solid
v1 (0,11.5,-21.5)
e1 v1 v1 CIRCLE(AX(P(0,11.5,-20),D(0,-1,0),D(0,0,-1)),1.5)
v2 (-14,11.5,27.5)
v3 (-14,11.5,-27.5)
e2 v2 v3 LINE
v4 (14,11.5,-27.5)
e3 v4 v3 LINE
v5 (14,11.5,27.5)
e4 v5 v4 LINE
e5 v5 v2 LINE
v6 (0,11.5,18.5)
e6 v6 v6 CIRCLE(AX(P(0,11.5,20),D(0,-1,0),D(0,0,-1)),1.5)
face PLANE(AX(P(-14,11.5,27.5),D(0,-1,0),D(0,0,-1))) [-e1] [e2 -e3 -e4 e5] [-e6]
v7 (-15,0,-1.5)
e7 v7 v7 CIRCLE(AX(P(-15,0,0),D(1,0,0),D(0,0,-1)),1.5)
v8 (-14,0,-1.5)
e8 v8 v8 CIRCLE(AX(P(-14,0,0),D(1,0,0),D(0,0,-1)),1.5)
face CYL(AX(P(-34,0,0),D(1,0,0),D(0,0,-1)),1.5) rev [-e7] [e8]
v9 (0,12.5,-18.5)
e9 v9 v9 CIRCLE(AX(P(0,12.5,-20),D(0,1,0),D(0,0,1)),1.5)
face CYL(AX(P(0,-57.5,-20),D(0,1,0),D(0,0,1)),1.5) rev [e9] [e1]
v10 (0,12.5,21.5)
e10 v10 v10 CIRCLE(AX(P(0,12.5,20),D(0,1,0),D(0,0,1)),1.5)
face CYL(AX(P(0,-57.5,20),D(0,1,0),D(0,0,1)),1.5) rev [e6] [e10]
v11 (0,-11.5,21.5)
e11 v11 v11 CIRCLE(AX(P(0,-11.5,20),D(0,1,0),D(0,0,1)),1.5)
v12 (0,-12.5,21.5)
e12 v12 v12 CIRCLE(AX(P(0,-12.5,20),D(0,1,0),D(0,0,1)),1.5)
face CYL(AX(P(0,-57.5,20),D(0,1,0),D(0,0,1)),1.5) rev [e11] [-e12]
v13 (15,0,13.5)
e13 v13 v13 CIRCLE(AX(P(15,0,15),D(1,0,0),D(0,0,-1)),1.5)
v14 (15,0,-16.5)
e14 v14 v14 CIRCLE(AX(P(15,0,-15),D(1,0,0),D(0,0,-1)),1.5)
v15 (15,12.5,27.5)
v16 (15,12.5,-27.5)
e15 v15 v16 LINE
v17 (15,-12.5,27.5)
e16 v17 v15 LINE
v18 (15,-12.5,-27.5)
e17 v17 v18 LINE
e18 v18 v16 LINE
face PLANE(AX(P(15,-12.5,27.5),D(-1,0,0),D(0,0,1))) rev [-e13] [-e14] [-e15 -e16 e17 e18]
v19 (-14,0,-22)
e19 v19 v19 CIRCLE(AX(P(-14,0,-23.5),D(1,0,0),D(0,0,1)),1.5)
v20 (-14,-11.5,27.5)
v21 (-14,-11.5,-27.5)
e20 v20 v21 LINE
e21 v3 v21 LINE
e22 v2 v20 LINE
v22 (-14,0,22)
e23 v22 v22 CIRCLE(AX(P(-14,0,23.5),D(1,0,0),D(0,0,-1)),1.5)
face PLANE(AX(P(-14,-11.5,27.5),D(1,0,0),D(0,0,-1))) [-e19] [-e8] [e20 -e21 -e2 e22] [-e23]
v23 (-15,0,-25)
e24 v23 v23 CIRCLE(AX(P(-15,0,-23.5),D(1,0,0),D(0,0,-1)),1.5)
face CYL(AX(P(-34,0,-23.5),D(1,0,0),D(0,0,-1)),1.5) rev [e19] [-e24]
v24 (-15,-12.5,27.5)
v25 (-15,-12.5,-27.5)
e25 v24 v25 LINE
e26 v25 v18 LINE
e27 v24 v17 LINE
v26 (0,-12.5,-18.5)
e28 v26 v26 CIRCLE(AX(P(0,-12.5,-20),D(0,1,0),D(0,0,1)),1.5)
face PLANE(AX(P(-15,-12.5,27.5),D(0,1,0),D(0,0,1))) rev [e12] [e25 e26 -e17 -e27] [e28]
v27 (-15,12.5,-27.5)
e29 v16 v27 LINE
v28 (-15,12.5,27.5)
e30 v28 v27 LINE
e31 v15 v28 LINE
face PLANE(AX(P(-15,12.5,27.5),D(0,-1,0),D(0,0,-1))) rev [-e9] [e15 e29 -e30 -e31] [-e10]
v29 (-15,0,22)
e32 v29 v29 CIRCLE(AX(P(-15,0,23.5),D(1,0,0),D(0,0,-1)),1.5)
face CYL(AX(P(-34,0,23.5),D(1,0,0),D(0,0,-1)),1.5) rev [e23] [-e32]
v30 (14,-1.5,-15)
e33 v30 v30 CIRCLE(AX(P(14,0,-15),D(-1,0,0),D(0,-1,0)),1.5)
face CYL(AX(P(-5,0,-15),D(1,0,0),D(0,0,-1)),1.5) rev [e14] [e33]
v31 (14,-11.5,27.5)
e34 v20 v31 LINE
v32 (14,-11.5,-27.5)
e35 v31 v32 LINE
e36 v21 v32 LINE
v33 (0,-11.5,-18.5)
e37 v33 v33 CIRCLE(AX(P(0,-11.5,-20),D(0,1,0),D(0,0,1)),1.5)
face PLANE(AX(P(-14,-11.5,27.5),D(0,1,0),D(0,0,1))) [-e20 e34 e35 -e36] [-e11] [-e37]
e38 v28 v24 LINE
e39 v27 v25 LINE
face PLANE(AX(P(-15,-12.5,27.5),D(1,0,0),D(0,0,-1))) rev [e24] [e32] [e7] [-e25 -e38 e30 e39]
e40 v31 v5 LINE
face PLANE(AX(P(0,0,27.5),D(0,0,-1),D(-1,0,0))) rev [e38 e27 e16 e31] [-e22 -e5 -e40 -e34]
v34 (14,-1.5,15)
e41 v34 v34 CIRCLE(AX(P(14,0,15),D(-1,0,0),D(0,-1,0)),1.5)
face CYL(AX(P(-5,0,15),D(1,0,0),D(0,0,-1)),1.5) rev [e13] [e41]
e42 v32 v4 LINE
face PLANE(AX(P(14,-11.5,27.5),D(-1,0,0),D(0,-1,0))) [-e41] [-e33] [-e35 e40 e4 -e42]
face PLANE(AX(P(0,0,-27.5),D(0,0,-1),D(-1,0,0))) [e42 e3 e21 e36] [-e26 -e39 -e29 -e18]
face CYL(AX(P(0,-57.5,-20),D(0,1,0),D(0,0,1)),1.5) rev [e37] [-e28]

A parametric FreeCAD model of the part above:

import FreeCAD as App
import Part
import Sketcher

V = App.Vector


def add_polygon(sketch, points):
    """Adds a closed chain of lines whose ends are joined by coincident constraints."""
    first, n = sketch.GeometryCount, len(points)
    for a, b in zip(points, points[1:] + points[:1]):
        sketch.addGeometry(Part.LineSegment(App.Vector(*a, 0), App.Vector(*b, 0)), False)
    for i in range(n):
        sketch.addConstraint(Sketcher.Constraint("Coincident", first + i, 2, first + (i + 1) % n, 1))

doc = App.newDocument("Part")
params = doc.addObject("Spreadsheet::Sheet", "Params")
for row, (alias, value) in enumerate([
    ("sketch1_width", "30 mm"),
    ("sketch1_width2", "28 mm"),
    ("sketch1_height", "25 mm"),
    ("sketch1_height2", "23 mm"),
    ("pad1_length", "55 mm"),
    ("sketch2_diameter", "3 mm"),
    ("pocket1_length", "70 mm"),
    ("sketch3_diameter", "3 mm"),
    ("pocket2_length", "20 mm"),
    ("sketch4_diameter", "3 mm"),
    ("pocket3_length", "20 mm"),
], start=1):
    params.set(f"A{row}", alias)
    params.set(f"B{row}", "=" + value)
    params.setAlias(f"B{row}", alias)

body = doc.addObject("PartDesign::Body", "Body")

# Sketch on XY plane
sketch1 = body.newObject("Sketcher::SketchObject", "Sketch")
sketch1.AttachmentSupport = (doc.getObject("XY_Plane"), [""])
sketch1.MapMode = "FlatFace"
add_polygon(sketch1, [(-15, 12.5), (-15, -12.5), (15, -12.5), (15, 12.5)])  # lines 0-3
add_polygon(sketch1, [(14, -11.5), (-14, -11.5), (-14, 11.5), (14, 11.5)])  # lines 4-7
sketch1.addConstraint(Sketcher.Constraint("Vertical", 0))
sketch1.addConstraint(Sketcher.Constraint("Horizontal", 1))
sketch1.addConstraint(Sketcher.Constraint("Vertical", 2))
sketch1.addConstraint(Sketcher.Constraint("Horizontal", 3))
sketch1.addConstraint(Sketcher.Constraint("Horizontal", 4))
sketch1.addConstraint(Sketcher.Constraint("Vertical", 5))
sketch1.addConstraint(Sketcher.Constraint("Horizontal", 6))
sketch1.addConstraint(Sketcher.Constraint("Vertical", 7))
sketch1.addConstraint(Sketcher.Constraint("Symmetric", 0, 2, 2, 2, -1, 1))
sketch1.addConstraint(Sketcher.Constraint("Symmetric", 4, 2, 6, 2, -1, 1))
sketch1.addConstraint(Sketcher.Constraint("DistanceX", 1, 1, 1, 2, 30.0))
sketch1.addConstraint(Sketcher.Constraint("DistanceX", 4, 2, 4, 1, 28.0))
sketch1.addConstraint(Sketcher.Constraint("DistanceY", 0, 2, 0, 1, 25.0))
sketch1.addConstraint(Sketcher.Constraint("DistanceY", 5, 1, 5, 2, 23.0))
sketch1.setExpression("Constraints[18]", "Params.sketch1_width")
sketch1.setExpression("Constraints[19]", "Params.sketch1_width2")
sketch1.setExpression("Constraints[20]", "Params.sketch1_height")
sketch1.setExpression("Constraints[21]", "Params.sketch1_height2")
pad1 = body.newObject("PartDesign::Pad", "Pad")
pad1.Profile = sketch1
pad1.setExpression("Length", "Params.pad1_length")
pad1.Midplane = True

# Sketch on XZ plane
sketch2 = body.newObject("Sketcher::SketchObject", "Sketch001")
sketch2.AttachmentSupport = (doc.getObject("XZ_Plane"), [""])
sketch2.MapMode = "FlatFace"
sketch2.AttachmentOffset = App.Placement(V(0, 0, -12.5), App.Rotation())
sketch2.addGeometry(Part.Circle(V(0, -20, 0), V(0, 0, 1), 1.5), False)
sketch2.addGeometry(Part.Circle(V(0, 20, 0), V(0, 0, 1), 1.5), False)
sketch2.addConstraint(Sketcher.Constraint("Equal", 0, 1))
sketch2.addConstraint(Sketcher.Constraint("Symmetric", 0, 3, 1, 3, -1, 1))
sketch2.addConstraint(Sketcher.Constraint("PointOnObject", 0, 3, -2))
sketch2.addConstraint(Sketcher.Constraint("Diameter", 0, 3.0))
sketch2.addConstraint(Sketcher.Constraint("DistanceY", 0, 3, -1, 1, 20.0))
sketch2.setExpression("Constraints[3]", "Params.sketch2_diameter")
pocket1 = body.newObject("PartDesign::Pocket", "Pocket")
pocket1.Profile = sketch2
pocket1.setExpression("Length", "Params.pocket1_length")
pocket1.Reversed = True

# Sketch on YZ plane
sketch3 = body.newObject("Sketcher::SketchObject", "Sketch002")
sketch3.AttachmentSupport = (doc.getObject("YZ_Plane"), [""])
sketch3.MapMode = "FlatFace"
sketch3.AttachmentOffset = App.Placement(V(0, 0, -14), App.Rotation())
sketch3.addGeometry(Part.Circle(V(0, 0, 0), V(0, 0, 1), 1.5), False)
sketch3.addGeometry(Part.Circle(V(0, 23.5, 0), V(0, 0, 1), 1.5), False)
sketch3.addGeometry(Part.Circle(V(0, -23.5, 0), V(0, 0, 1), 1.5), False)
sketch3.addConstraint(Sketcher.Constraint("Coincident", 0, 3, -1, 1))
sketch3.addConstraint(Sketcher.Constraint("Equal", 0, 1))
sketch3.addConstraint(Sketcher.Constraint("Equal", 1, 2))
sketch3.addConstraint(Sketcher.Constraint("Symmetric", 1, 3, 2, 3, -1, 1))
sketch3.addConstraint(Sketcher.Constraint("PointOnObject", 1, 3, -2))
sketch3.addConstraint(Sketcher.Constraint("Diameter", 0, 3.0))
sketch3.addConstraint(Sketcher.Constraint("DistanceY", 2, 3, 1, 3, 47.0))
sketch3.setExpression("Constraints[5]", "Params.sketch3_diameter")
pocket2 = body.newObject("PartDesign::Pocket", "Pocket001")
pocket2.Profile = sketch3
pocket2.setExpression("Length", "Params.pocket2_length")

# Sketch on YZ plane
sketch4 = body.newObject("Sketcher::SketchObject", "Sketch003")
sketch4.AttachmentSupport = (doc.getObject("YZ_Plane"), [""])
sketch4.MapMode = "FlatFace"
sketch4.AttachmentOffset = App.Placement(V(0, 0, 15), App.Rotation())
sketch4.addGeometry(Part.Circle(V(0, -15, 0), V(0, 0, 1), 1.5), False)
sketch4.addGeometry(Part.Circle(V(0, 15, 0), V(0, 0, 1), 1.5), False)
sketch4.addConstraint(Sketcher.Constraint("Equal", 0, 1))
sketch4.addConstraint(Sketcher.Constraint("Symmetric", 0, 3, 1, 3, -1, 1))
sketch4.addConstraint(Sketcher.Constraint("PointOnObject", 0, 3, -2))
sketch4.addConstraint(Sketcher.Constraint("Diameter", 0, 3.0))
sketch4.addConstraint(Sketcher.Constraint("DistanceY", 0, 3, -1, 1, 15.0))
sketch4.setExpression("Constraints[3]", "Params.sketch4_diameter")
pocket3 = body.newObject("PartDesign::Pocket", "Pocket002")
pocket3.Profile = sketch4
pocket3.setExpression("Length", "Params.pocket3_length")

doc.recompute()
